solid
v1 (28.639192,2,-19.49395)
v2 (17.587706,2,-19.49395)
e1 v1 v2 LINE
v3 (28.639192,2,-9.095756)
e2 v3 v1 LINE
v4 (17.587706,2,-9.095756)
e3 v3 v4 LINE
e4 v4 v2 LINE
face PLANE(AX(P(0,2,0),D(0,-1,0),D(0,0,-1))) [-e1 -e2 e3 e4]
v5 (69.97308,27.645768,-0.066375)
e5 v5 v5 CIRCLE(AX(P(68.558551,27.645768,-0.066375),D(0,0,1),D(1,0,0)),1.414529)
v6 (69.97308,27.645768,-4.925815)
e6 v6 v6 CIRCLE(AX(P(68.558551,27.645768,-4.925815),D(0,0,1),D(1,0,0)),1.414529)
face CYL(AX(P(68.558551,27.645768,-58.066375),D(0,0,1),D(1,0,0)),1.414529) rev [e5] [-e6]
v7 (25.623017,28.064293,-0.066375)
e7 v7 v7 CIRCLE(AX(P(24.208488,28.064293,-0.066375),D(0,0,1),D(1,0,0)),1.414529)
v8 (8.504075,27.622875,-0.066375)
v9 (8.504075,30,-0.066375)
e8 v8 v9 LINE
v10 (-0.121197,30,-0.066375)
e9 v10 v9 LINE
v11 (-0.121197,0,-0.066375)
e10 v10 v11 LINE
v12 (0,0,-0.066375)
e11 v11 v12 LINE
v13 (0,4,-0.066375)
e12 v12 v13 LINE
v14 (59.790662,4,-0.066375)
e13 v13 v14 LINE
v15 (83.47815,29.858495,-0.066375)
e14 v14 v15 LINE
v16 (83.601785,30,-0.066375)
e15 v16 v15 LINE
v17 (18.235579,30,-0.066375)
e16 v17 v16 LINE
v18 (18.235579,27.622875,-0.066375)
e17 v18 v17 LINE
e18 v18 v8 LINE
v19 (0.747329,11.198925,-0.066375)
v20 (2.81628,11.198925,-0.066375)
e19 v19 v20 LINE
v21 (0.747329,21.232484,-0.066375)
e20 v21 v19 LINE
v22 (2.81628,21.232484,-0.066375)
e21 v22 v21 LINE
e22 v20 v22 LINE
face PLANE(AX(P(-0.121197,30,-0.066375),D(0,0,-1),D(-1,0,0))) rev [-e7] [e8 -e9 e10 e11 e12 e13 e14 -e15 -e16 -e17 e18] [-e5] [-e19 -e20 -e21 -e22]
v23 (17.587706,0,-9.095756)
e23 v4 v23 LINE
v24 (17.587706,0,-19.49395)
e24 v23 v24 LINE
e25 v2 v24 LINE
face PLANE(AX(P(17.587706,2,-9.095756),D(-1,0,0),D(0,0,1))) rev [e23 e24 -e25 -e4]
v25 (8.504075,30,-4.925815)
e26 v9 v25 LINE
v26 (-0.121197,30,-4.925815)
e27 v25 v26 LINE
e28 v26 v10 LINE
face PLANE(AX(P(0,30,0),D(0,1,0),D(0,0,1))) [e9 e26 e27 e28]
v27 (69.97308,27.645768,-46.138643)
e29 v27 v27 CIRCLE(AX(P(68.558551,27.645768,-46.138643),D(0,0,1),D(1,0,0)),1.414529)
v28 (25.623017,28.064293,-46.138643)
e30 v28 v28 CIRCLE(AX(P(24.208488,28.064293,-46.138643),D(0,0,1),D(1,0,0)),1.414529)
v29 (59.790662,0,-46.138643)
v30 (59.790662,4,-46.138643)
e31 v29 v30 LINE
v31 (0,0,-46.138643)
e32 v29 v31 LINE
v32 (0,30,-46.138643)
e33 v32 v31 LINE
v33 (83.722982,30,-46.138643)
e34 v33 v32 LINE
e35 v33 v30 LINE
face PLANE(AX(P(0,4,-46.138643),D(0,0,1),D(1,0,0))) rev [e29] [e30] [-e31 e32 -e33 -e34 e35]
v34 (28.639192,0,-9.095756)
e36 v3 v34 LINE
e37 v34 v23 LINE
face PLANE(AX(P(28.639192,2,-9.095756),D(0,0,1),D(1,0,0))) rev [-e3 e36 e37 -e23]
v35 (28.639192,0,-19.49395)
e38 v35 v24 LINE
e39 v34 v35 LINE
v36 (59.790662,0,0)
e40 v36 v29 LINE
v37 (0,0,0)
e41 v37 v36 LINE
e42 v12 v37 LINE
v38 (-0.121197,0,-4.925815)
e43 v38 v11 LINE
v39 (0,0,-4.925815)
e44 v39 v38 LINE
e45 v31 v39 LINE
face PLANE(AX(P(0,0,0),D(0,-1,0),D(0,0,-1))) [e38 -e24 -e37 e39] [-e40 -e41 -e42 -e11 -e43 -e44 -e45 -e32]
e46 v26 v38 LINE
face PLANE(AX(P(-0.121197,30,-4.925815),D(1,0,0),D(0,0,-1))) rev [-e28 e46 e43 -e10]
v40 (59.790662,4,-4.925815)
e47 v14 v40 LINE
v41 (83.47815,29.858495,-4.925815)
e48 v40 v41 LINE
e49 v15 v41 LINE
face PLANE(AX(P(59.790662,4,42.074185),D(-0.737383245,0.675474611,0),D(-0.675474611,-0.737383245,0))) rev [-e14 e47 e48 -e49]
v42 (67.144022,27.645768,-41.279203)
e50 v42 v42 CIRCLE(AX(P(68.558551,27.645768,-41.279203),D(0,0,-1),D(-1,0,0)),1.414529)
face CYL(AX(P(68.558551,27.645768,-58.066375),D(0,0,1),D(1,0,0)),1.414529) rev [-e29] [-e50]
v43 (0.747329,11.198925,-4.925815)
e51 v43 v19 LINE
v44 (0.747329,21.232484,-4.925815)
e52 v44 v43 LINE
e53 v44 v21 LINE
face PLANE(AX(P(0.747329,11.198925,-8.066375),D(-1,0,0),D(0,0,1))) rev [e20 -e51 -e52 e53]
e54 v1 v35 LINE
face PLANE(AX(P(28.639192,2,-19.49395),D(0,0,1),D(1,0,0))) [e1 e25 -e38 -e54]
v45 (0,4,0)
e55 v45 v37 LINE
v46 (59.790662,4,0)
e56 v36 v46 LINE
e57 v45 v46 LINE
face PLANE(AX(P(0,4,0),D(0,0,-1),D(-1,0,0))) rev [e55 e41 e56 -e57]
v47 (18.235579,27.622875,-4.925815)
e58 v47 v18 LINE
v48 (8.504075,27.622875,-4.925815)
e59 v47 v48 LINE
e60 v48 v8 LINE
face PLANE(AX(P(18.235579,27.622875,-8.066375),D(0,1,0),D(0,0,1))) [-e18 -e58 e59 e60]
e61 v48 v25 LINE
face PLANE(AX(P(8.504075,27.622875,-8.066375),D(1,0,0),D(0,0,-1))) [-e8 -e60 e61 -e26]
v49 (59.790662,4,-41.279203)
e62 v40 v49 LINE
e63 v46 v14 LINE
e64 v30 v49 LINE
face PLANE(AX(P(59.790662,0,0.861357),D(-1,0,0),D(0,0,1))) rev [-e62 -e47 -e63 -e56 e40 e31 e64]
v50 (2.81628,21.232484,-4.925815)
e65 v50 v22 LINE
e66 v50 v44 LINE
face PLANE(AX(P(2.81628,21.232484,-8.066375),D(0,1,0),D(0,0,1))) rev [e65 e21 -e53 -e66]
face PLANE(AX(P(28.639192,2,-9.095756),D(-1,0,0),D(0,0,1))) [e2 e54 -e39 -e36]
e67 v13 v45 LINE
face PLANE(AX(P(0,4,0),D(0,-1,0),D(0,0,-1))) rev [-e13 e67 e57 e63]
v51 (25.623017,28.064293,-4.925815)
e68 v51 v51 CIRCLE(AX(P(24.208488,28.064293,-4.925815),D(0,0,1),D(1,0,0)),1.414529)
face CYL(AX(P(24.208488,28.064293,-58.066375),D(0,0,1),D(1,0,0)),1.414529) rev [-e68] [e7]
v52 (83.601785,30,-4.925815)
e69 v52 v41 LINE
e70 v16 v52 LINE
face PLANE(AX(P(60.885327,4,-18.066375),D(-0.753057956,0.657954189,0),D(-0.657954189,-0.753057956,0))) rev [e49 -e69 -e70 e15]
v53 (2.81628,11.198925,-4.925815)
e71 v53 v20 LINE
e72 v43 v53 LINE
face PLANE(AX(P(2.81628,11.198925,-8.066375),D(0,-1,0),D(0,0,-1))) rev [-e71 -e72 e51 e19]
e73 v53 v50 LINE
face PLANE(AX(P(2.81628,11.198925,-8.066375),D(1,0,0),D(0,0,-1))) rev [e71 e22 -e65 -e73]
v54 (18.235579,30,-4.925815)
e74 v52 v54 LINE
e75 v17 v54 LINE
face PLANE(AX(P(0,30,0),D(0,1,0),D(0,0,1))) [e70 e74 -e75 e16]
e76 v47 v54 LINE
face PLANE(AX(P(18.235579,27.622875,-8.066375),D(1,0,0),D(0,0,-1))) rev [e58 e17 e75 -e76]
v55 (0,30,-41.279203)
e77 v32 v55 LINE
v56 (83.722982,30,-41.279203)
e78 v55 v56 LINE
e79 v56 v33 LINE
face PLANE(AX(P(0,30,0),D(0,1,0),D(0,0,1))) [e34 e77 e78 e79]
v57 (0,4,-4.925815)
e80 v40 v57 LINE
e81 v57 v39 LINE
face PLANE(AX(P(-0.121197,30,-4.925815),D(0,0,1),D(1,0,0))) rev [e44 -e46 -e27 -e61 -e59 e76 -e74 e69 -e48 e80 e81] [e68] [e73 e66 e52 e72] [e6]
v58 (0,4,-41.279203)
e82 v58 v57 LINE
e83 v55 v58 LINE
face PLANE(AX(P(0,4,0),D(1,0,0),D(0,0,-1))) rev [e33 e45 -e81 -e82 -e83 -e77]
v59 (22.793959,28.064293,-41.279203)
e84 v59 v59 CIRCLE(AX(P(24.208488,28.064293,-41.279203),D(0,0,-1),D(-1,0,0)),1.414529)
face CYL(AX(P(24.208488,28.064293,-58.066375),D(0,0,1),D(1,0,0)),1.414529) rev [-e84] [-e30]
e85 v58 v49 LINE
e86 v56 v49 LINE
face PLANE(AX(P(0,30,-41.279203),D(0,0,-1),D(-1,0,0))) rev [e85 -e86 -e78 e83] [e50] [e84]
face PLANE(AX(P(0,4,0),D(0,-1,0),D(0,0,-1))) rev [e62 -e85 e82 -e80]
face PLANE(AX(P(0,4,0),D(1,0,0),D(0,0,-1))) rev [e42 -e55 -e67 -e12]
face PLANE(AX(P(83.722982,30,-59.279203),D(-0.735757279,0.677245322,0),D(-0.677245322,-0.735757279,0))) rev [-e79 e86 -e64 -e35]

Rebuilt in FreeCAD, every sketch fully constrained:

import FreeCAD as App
import Part
import Sketcher


def add_polygon(sketch, points):
    """Adds a closed chain of lines whose ends are joined by coincident constraints."""
    first, n = sketch.GeometryCount, len(points)
    for a, b in zip(points, points[1:] + points[:1]):
        sketch.addGeometry(Part.LineSegment(App.Vector(*a, 0), App.Vector(*b, 0)), False)
    for i in range(n):
        sketch.addConstraint(Sketcher.Constraint("Coincident", first + i, 2, first + (i + 1) % n, 1))

doc = App.newDocument("Part")
params = doc.addObject("Spreadsheet::Sheet", "Params")
for row, (alias, value) in enumerate([
    ("pad1_length", "4 mm"),
    ("pad2_length", "30 mm"),
    ("sketch3_height", "26 mm"),
    ("pocket1_length", "18 mm"),
    ("sketch4_height", "26 mm"),
    ("pocket2_length", "18 mm"),
    ("sketch5_height", "4 mm"),
    ("pocket3_length", "54 mm"),
    ("pocket4_length", "2 mm"),
    ("pocket5_length", "8 mm"),
    ("pocket6_length", "8 mm"),
    ("sketch9_height", "4 mm"),
    ("pocket7_length", "47 mm"),
    ("pocket8_length", "47 mm"),
    ("pocket9_length", "58 mm"),
], start=1):
    params.set(f"A{row}", alias)
    params.set(f"B{row}", "=" + value)
    params.setAlias(f"B{row}", alias)

body = doc.addObject("PartDesign::Body", "Body")

# Sketch on XZ plane
sketch1 = body.newObject("Sketcher::SketchObject", "Sketch")
sketch1.AttachmentSupport = (doc.getObject("XZ_Plane"), [""])
sketch1.MapMode = "FlatFace"
add_polygon(sketch1, [(0, -46), (0, 0), (84, 0), (84, -46)])  # lines 0-3
sketch1.addConstraint(Sketcher.Constraint("Vertical", 0))
sketch1.addConstraint(Sketcher.Constraint("Horizontal", 1))
sketch1.addConstraint(Sketcher.Constraint("Vertical", 2))
sketch1.addConstraint(Sketcher.Constraint("Horizontal", 3))
sketch1.addConstraint(Sketcher.Constraint("Coincident", 0, 2, -1, 1))
sketch1.addConstraint(Sketcher.Constraint("DistanceX", 1, 1, 1, 2, 83.722982))
sketch1.addConstraint(Sketcher.Constraint("DistanceY", 0, 1, 0, 2, 46.138643))
pad1 = body.newObject("PartDesign::Pad", "Pad")
pad1.Profile = sketch1
pad1.setExpression("Length", "Params.pad1_length")
pad1.Reversed = True

# Sketch on XZ plane
sketch2 = body.newObject("Sketcher::SketchObject", "Sketch001")
sketch2.AttachmentSupport = (doc.getObject("XZ_Plane"), [""])
sketch2.MapMode = "FlatFace"
add_polygon(sketch2, [(0, -46.1), (0, -41.3), (83.7, -41.3), (83.7, -46.1)])  # lines 0-3
add_polygon(sketch2, [(-0.1, -4.9), (-0.1, -0.1), (83.6, -0.1), (83.6, -4.9)])  # lines 4-7
sketch2.addConstraint(Sketcher.Constraint("Vertical", 0))
sketch2.addConstraint(Sketcher.Constraint("Horizontal", 1))
sketch2.addConstraint(Sketcher.Constraint("Vertical", 2))
sketch2.addConstraint(Sketcher.Constraint("Horizontal", 3))
sketch2.addConstraint(Sketcher.Constraint("Vertical", 4))
sketch2.addConstraint(Sketcher.Constraint("Horizontal", 5))
sketch2.addConstraint(Sketcher.Constraint("Vertical", 6))
sketch2.addConstraint(Sketcher.Constraint("Horizontal", 7))
sketch2.addConstraint(Sketcher.Constraint("PointOnObject", 0, 2, -2))
sketch2.addConstraint(Sketcher.Constraint("Equal", 3, 5))
sketch2.addConstraint(Sketcher.Constraint("Equal", 2, 4))
sketch2.addConstraint(Sketcher.Constraint("DistanceY", 0, 1, 0, 2, 4.859441))
sketch2.addConstraint(Sketcher.Constraint("DistanceX", 1, 1, 1, 2, 83.722982))
sketch2.addConstraint(Sketcher.Constraint("DistanceY", 0, 2, 4, 2, 41.212828))
sketch2.addConstraint(Sketcher.Constraint("DistanceX", 4, 2, 1, 2, 83.844179))
sketch2.addConstraint(Sketcher.Constraint("DistanceY", 0, 2, -1, 1, 41.279203))
pad2 = body.newObject("PartDesign::Pad", "Pad001")
pad2.Profile = sketch2
pad2.setExpression("Length", "Params.pad2_length")
pad2.Reversed = True

# Sketch on XY plane
sketch3 = body.newObject("Sketcher::SketchObject", "Sketch002")
sketch3.AttachmentSupport = (doc.getObject("XY_Plane"), [""])
sketch3.MapMode = "FlatFace"
sketch3.AttachmentOffset = App.Placement(App.Vector(0, 0, -0.066375), App.Rotation())
add_polygon(sketch3, [(84, 4), (84, 30), (61, 4)])  # lines 0-2
sketch3.addConstraint(Sketcher.Constraint("Vertical", 0))
sketch3.addConstraint(Sketcher.Constraint("Horizontal", 2))
sketch3.addConstraint(Sketcher.Constraint("DistanceY", 0, 1, 0, 2, 26.0))
sketch3.addConstraint(Sketcher.Constraint("DistanceY", -1, 1, 0, 2, 30.0))
sketch3.addConstraint(Sketcher.Constraint("DistanceX", 2, 1, 2, 2, 22.716457))
sketch3.addConstraint(Sketcher.Constraint("DistanceX", -1, 1, 0, 2, 83.601785))
sketch3.setExpression("Constraints[5]", "Params.sketch3_height")
pocket1 = body.newObject("PartDesign::Pocket", "Pocket")
pocket1.Profile = sketch3
pocket1.setExpression("Length", "Params.pocket1_length")

# Sketch on XY plane
sketch4 = body.newObject("Sketcher::SketchObject", "Sketch003")
sketch4.AttachmentSupport = (doc.getObject("XY_Plane"), [""])
sketch4.MapMode = "FlatFace"
sketch4.AttachmentOffset = App.Placement(App.Vector(0, 0, -41.279203), App.Rotation())
add_polygon(sketch4, [(84, 30), (60, 4), (84, 4)])  # lines 0-2
sketch4.addConstraint(Sketcher.Constraint("Horizontal", 1))
sketch4.addConstraint(Sketcher.Constraint("Vertical", 2))
sketch4.addConstraint(Sketcher.Constraint("DistanceY", 2, 1, 2, 2, 26.0))
sketch4.addConstraint(Sketcher.Constraint("DistanceY", -1, 1, 0, 2, 4.0))
sketch4.addConstraint(Sketcher.Constraint("DistanceX", 1, 1, 1, 2, 23.93232))
sketch4.addConstraint(Sketcher.Constraint("DistanceX", -1, 1, 0, 2, 59.790662))
sketch4.setExpression("Constraints[5]", "Params.sketch4_height")
pocket2 = body.newObject("PartDesign::Pocket", "Pocket001")
pocket2.Profile = sketch4
pocket2.setExpression("Length", "Params.pocket2_length")

# Sketch on XY plane
sketch5 = body.newObject("Sketcher::SketchObject", "Sketch004")
sketch5.AttachmentSupport = (doc.getObject("XY_Plane"), [""])
sketch5.MapMode = "FlatFace"
add_polygon(sketch5, [(61, 4), (61, 0), (83.7, 0), (83.7, 4)])  # lines 0-3
sketch5.addConstraint(Sketcher.Constraint("Vertical", 0))
sketch5.addConstraint(Sketcher.Constraint("Horizontal", 1))
sketch5.addConstraint(Sketcher.Constraint("Vertical", 2))
sketch5.addConstraint(Sketcher.Constraint("Horizontal", 3))
sketch5.addConstraint(Sketcher.Constraint("PointOnObject", 0, 2, -1))
sketch5.addConstraint(Sketcher.Constraint("DistanceY", 0, 2, 0, 1, 4.0))
sketch5.addConstraint(Sketcher.Constraint("DistanceX", 1, 1, 1, 2, 22.745855))
sketch5.addConstraint(Sketcher.Constraint("DistanceX", -1, 1, 0, 2, 60.977127))
sketch5.setExpression("Constraints[9]", "Params.sketch5_height")
pocket3 = body.newObject("PartDesign::Pocket", "Pocket002")
pocket3.Profile = sketch5
pocket3.setExpression("Length", "Params.pocket3_length")

# Sketch on XZ plane
sketch6 = body.newObject("Sketcher::SketchObject", "Sketch005")
sketch6.AttachmentSupport = (doc.getObject("XZ_Plane"), [""])
sketch6.MapMode = "FlatFace"
add_polygon(sketch6, [(18, -9), (18, -19), (29, -19), (29, -9)])  # lines 0-3
sketch6.addConstraint(Sketcher.Constraint("Vertical", 0))
sketch6.addConstraint(Sketcher.Constraint("Horizontal", 1))
sketch6.addConstraint(Sketcher.Constraint("Vertical", 2))
sketch6.addConstraint(Sketcher.Constraint("Horizontal", 3))
sketch6.addConstraint(Sketcher.Constraint("DistanceX", 1, 1, 1, 2, 11.051486))
sketch6.addConstraint(Sketcher.Constraint("DistanceY", 0, 2, 0, 1, 10.398195))
sketch6.addConstraint(Sketcher.Constraint("DistanceY", 0, 2, -1, 1, 19.493951))
sketch6.addConstraint(Sketcher.Constraint("DistanceX", -1, 1, 0, 2, 17.587706))
pocket4 = body.newObject("PartDesign::Pocket", "Pocket003")
pocket4.Profile = sketch6
pocket4.setExpression("Length", "Params.pocket4_length")

# Sketch on XY plane
sketch7 = body.newObject("Sketcher::SketchObject", "Sketch006")
sketch7.AttachmentSupport = (doc.getObject("XY_Plane"), [""])
sketch7.MapMode = "FlatFace"
sketch7.AttachmentOffset = App.Placement(App.Vector(0, 0, -0.066375), App.Rotation())
add_polygon(sketch7, [(8.5, 30), (8.5, 27.6), (18.2, 27.6), (18.2, 30)])  # lines 0-3
sketch7.addConstraint(Sketcher.Constraint("Vertical", 0))
sketch7.addConstraint(Sketcher.Constraint("Horizontal", 1))
sketch7.addConstraint(Sketcher.Constraint("Vertical", 2))
sketch7.addConstraint(Sketcher.Constraint("Horizontal", 3))
sketch7.addConstraint(Sketcher.Constraint("DistanceY", -1, 1, 2, 2, 30.0))
sketch7.addConstraint(Sketcher.Constraint("DistanceX", 1, 1, 1, 2, 9.731504))
sketch7.addConstraint(Sketcher.Constraint("DistanceY", 0, 2, 0, 1, 2.377125))
sketch7.addConstraint(Sketcher.Constraint("DistanceX", -1, 1, 1, 2, 18.235579))
pocket5 = body.newObject("PartDesign::Pocket", "Pocket004")
pocket5.Profile = sketch7
pocket5.setExpression("Length", "Params.pocket5_length")

# Sketch on XY plane
sketch8 = body.newObject("Sketcher::SketchObject", "Sketch007")
sketch8.AttachmentSupport = (doc.getObject("XY_Plane"), [""])
sketch8.MapMode = "FlatFace"
sketch8.AttachmentOffset = App.Placement(App.Vector(0, 0, -0.066375), App.Rotation())
add_polygon(sketch8, [(0.7, 21.2), (0.7, 11.2), (2.8, 11.2), (2.8, 21.2)])  # lines 0-3
sketch8.addConstraint(Sketcher.Constraint("Vertical", 0))
sketch8.addConstraint(Sketcher.Constraint("Horizontal", 1))
sketch8.addConstraint(Sketcher.Constraint("Vertical", 2))
sketch8.addConstraint(Sketcher.Constraint("Horizontal", 3))
sketch8.addConstraint(Sketcher.Constraint("DistanceX", 1, 1, 1, 2, 2.068951))
sketch8.addConstraint(Sketcher.Constraint("DistanceY", 0, 2, 0, 1, 10.033559))
sketch8.addConstraint(Sketcher.Constraint("DistanceX", -1, 1, 0, 2, 0.747329))
sketch8.addConstraint(Sketcher.Constraint("DistanceY", -1, 1, 0, 2, 11.198925))
pocket6 = body.newObject("PartDesign::Pocket", "Pocket005")
pocket6.Profile = sketch8
pocket6.setExpression("Length", "Params.pocket6_length")

# Sketch on XY plane
sketch9 = body.newObject("Sketcher::SketchObject", "Sketch008")
sketch9.AttachmentSupport = (doc.getObject("XY_Plane"), [""])
sketch9.MapMode = "FlatFace"
sketch9.AttachmentOffset = App.Placement(App.Vector(0, 0, -46.138643), App.Rotation())
add_polygon(sketch9, [(61, 4), (61, 0), (59.8, 0), (59.8, 4)])  # lines 0-3
sketch9.addConstraint(Sketcher.Constraint("Vertical", 0))
sketch9.addConstraint(Sketcher.Constraint("Horizontal", 1))
sketch9.addConstraint(Sketcher.Constraint("Vertical", 2))
sketch9.addConstraint(Sketcher.Constraint("Horizontal", 3))
sketch9.addConstraint(Sketcher.Constraint("PointOnObject", 0, 2, -1))
sketch9.addConstraint(Sketcher.Constraint("DistanceY", 0, 2, 0, 1, 4.0))
sketch9.addConstraint(Sketcher.Constraint("DistanceX", 1, 2, 1, 1, 1.186464))
sketch9.addConstraint(Sketcher.Constraint("DistanceX", -1, 1, 0, 2, 60.977127))
sketch9.setExpression("Constraints[9]", "Params.sketch9_height")
pocket7 = body.newObject("PartDesign::Pocket", "Pocket006")
pocket7.Profile = sketch9
pocket7.setExpression("Length", "Params.pocket7_length")
pocket7.Reversed = True

# Sketch on XY plane
sketch10 = body.newObject("Sketcher::SketchObject", "Sketch009")
sketch10.AttachmentSupport = (doc.getObject("XY_Plane"), [""])
sketch10.MapMode = "FlatFace"
sketch10.AttachmentOffset = App.Placement(App.Vector(0, 0, -4.925815), App.Rotation())
add_polygon(sketch10, [(59.8, 4), (83.5, 29.9), (60.9, 4)])  # lines 0-2
sketch10.addConstraint(Sketcher.Constraint("Horizontal", 2))
sketch10.addConstraint(Sketcher.Constraint("DistanceY", -1, 1, 1, 2, 4.0))
sketch10.addConstraint(Sketcher.Constraint("DistanceX", 2, 2, 2, 1, 1.094665))
sketch10.addConstraint(Sketcher.Constraint("DistanceX", -1, 1, 0, 2, 83.47815))
sketch10.addConstraint(Sketcher.Constraint("Distance", 0, 35.067917))
sketch10.addConstraint(Sketcher.Constraint("Distance", 1, 34.337987))
pocket8 = body.newObject("PartDesign::Pocket", "Pocket007")
pocket8.Profile = sketch10
pocket8.setExpression("Length", "Params.pocket8_length")
pocket8.Reversed = True

# Sketch on XY plane
sketch11 = body.newObject("Sketcher::SketchObject", "Sketch010")
sketch11.AttachmentSupport = (doc.getObject("XY_Plane"), [""])
sketch11.MapMode = "FlatFace"
sketch11.AttachmentOffset = App.Placement(App.Vector(0, 0, -0.066375), App.Rotation())
sketch11.addGeometry(Part.Circle(App.Vector(68.6, 27.6, 0), App.Vector(0, 0, 1), 1.4), False)
sketch11.addGeometry(Part.Circle(App.Vector(24.2, 28.1, 0), App.Vector(0, 0, 1), 1.4), False)
sketch11.addConstraint(Sketcher.Constraint("Equal", 0, 1))
sketch11.addConstraint(Sketcher.Constraint("Diameter", 0, 2.829058))
sketch11.addConstraint(Sketcher.Constraint("DistanceX", -1, 1, 0, 3, 68.558551))
sketch11.addConstraint(Sketcher.Constraint("DistanceY", -1, 1, 0, 3, 27.645768))
sketch11.addConstraint(Sketcher.Constraint("DistanceX", -1, 1, 1, 3, 24.208488))
sketch11.addConstraint(Sketcher.Constraint("DistanceY", -1, 1, 1, 3, 28.064293))
pocket9 = body.newObject("PartDesign::Pocket", "Pocket008")
pocket9.Profile = sketch11
pocket9.setExpression("Length", "Params.pocket9_length")

doc.recompute()
